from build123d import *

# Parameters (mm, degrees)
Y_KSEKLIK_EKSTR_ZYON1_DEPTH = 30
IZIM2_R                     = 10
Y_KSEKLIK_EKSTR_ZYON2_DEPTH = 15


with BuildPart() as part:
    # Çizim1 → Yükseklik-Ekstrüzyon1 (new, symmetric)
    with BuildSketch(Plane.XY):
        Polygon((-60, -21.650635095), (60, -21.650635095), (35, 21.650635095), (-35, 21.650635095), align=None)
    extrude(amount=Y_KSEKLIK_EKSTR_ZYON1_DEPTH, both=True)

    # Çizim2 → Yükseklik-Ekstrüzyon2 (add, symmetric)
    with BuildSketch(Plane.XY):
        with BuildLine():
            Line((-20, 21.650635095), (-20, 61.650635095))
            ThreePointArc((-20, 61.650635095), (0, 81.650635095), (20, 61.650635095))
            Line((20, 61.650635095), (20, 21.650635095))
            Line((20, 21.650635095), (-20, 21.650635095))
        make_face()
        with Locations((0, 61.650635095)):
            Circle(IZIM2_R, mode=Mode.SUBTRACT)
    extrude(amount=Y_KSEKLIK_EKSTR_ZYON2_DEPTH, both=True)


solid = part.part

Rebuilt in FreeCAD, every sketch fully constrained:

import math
import FreeCAD as App
import Part
import Sketcher
from FreeCAD import Vector
Q = App.Units.Quantity

doc = App.newDocument("Part")
body = doc.addObject("PartDesign::Body", "Body")

sketch1 = body.newObject("Sketcher::SketchObject", "Sketch")
sketch1.AttachmentSupport = (doc.getObject("XY_Plane"), [""])
sketch1.MapMode = "FlatFace"
sketch1.addGeometry([
    Part.LineSegment(Vector(-60, -22, 0), Vector(60, -22, 0)),
    Part.LineSegment(Vector(60, -22, 0), Vector(35, 22, 0)),
    Part.LineSegment(Vector(35, 22, 0), Vector(-35, 22, 0)),
    Part.LineSegment(Vector(-35, 22, 0), Vector(-60, -22, 0)),
], False)
sketch1.addConstraint([
    Sketcher.Constraint("Coincident", 0, 2, 1, 1),
    Sketcher.Constraint("Coincident", 1, 2, 2, 1),
    Sketcher.Constraint("Coincident", 2, 2, 3, 1),
    Sketcher.Constraint("Coincident", 3, 2, 0, 1),
    Sketcher.Constraint("Horizontal", 0),
    Sketcher.Constraint("Horizontal", 2),
    Sketcher.Constraint("Equal", 1, 3),
    Sketcher.Constraint("DistanceX", 0, 1, 0, 2, 120.0),
    Sketcher.Constraint("DistanceX", 2, 2, 2, 1, 70.0),
    Sketcher.Constraint("Angle", 1, Q("120 deg")),
    Sketcher.Constraint("DistanceX", -1, 1, 0, 2, 60.0),
    Sketcher.Constraint("DistanceY", 0, 2, -1, 1, 21.650635),
])
pad1 = body.newObject("PartDesign::Pad", "Pad")
pad1.Profile = sketch1
pad1.Length = 60
pad1.Midplane = True

sketch2 = body.newObject("Sketcher::SketchObject", "Sketch001")
sketch2.AttachmentSupport = (doc.getObject("XY_Plane"), [""])
sketch2.MapMode = "FlatFace"
sketch2.addGeometry([
    Part.LineSegment(Vector(-20, 62, 0), Vector(-20, 22, 0)),
    Part.LineSegment(Vector(-20, 22, 0), Vector(20, 22, 0)),
    Part.LineSegment(Vector(20, 22, 0), Vector(20, 62, 0)),
    Part.ArcOfCircle(Part.Circle(Vector(0, 62, 0), Vector(0, 0, 1), 20), math.radians(0), math.radians(180)),
    Part.Circle(Vector(0, 62, 0), Vector(0, 0, 1), 10),
], False)
sketch2.addConstraint([
    Sketcher.Constraint("Coincident", 0, 2, 1, 1),
    Sketcher.Constraint("Coincident", 1, 2, 2, 1),
    Sketcher.Constraint("Tangent", 2, 2, 3, 1),
    Sketcher.Constraint("Tangent", 3, 2, 0, 1),
    Sketcher.Constraint("Vertical", 0),
    Sketcher.Constraint("Horizontal", 1),
    Sketcher.Constraint("Vertical", 2),
    Sketcher.Constraint("Coincident", 4, 3, 3, 3),
    Sketcher.Constraint("PointOnObject", 3, 3, -2),
    Sketcher.Constraint("Equal", 1, 0),
    Sketcher.Constraint("Diameter", 4, 20.0),
    Sketcher.Constraint("Radius", 3, 20.0),
    Sketcher.Constraint("DistanceY", -1, 1, 3, 3, 61.650635),
])
pad2 = body.newObject("PartDesign::Pad", "Pad001")
pad2.Profile = sketch2
pad2.Length = 30
pad2.Midplane = True

doc.recompute()
